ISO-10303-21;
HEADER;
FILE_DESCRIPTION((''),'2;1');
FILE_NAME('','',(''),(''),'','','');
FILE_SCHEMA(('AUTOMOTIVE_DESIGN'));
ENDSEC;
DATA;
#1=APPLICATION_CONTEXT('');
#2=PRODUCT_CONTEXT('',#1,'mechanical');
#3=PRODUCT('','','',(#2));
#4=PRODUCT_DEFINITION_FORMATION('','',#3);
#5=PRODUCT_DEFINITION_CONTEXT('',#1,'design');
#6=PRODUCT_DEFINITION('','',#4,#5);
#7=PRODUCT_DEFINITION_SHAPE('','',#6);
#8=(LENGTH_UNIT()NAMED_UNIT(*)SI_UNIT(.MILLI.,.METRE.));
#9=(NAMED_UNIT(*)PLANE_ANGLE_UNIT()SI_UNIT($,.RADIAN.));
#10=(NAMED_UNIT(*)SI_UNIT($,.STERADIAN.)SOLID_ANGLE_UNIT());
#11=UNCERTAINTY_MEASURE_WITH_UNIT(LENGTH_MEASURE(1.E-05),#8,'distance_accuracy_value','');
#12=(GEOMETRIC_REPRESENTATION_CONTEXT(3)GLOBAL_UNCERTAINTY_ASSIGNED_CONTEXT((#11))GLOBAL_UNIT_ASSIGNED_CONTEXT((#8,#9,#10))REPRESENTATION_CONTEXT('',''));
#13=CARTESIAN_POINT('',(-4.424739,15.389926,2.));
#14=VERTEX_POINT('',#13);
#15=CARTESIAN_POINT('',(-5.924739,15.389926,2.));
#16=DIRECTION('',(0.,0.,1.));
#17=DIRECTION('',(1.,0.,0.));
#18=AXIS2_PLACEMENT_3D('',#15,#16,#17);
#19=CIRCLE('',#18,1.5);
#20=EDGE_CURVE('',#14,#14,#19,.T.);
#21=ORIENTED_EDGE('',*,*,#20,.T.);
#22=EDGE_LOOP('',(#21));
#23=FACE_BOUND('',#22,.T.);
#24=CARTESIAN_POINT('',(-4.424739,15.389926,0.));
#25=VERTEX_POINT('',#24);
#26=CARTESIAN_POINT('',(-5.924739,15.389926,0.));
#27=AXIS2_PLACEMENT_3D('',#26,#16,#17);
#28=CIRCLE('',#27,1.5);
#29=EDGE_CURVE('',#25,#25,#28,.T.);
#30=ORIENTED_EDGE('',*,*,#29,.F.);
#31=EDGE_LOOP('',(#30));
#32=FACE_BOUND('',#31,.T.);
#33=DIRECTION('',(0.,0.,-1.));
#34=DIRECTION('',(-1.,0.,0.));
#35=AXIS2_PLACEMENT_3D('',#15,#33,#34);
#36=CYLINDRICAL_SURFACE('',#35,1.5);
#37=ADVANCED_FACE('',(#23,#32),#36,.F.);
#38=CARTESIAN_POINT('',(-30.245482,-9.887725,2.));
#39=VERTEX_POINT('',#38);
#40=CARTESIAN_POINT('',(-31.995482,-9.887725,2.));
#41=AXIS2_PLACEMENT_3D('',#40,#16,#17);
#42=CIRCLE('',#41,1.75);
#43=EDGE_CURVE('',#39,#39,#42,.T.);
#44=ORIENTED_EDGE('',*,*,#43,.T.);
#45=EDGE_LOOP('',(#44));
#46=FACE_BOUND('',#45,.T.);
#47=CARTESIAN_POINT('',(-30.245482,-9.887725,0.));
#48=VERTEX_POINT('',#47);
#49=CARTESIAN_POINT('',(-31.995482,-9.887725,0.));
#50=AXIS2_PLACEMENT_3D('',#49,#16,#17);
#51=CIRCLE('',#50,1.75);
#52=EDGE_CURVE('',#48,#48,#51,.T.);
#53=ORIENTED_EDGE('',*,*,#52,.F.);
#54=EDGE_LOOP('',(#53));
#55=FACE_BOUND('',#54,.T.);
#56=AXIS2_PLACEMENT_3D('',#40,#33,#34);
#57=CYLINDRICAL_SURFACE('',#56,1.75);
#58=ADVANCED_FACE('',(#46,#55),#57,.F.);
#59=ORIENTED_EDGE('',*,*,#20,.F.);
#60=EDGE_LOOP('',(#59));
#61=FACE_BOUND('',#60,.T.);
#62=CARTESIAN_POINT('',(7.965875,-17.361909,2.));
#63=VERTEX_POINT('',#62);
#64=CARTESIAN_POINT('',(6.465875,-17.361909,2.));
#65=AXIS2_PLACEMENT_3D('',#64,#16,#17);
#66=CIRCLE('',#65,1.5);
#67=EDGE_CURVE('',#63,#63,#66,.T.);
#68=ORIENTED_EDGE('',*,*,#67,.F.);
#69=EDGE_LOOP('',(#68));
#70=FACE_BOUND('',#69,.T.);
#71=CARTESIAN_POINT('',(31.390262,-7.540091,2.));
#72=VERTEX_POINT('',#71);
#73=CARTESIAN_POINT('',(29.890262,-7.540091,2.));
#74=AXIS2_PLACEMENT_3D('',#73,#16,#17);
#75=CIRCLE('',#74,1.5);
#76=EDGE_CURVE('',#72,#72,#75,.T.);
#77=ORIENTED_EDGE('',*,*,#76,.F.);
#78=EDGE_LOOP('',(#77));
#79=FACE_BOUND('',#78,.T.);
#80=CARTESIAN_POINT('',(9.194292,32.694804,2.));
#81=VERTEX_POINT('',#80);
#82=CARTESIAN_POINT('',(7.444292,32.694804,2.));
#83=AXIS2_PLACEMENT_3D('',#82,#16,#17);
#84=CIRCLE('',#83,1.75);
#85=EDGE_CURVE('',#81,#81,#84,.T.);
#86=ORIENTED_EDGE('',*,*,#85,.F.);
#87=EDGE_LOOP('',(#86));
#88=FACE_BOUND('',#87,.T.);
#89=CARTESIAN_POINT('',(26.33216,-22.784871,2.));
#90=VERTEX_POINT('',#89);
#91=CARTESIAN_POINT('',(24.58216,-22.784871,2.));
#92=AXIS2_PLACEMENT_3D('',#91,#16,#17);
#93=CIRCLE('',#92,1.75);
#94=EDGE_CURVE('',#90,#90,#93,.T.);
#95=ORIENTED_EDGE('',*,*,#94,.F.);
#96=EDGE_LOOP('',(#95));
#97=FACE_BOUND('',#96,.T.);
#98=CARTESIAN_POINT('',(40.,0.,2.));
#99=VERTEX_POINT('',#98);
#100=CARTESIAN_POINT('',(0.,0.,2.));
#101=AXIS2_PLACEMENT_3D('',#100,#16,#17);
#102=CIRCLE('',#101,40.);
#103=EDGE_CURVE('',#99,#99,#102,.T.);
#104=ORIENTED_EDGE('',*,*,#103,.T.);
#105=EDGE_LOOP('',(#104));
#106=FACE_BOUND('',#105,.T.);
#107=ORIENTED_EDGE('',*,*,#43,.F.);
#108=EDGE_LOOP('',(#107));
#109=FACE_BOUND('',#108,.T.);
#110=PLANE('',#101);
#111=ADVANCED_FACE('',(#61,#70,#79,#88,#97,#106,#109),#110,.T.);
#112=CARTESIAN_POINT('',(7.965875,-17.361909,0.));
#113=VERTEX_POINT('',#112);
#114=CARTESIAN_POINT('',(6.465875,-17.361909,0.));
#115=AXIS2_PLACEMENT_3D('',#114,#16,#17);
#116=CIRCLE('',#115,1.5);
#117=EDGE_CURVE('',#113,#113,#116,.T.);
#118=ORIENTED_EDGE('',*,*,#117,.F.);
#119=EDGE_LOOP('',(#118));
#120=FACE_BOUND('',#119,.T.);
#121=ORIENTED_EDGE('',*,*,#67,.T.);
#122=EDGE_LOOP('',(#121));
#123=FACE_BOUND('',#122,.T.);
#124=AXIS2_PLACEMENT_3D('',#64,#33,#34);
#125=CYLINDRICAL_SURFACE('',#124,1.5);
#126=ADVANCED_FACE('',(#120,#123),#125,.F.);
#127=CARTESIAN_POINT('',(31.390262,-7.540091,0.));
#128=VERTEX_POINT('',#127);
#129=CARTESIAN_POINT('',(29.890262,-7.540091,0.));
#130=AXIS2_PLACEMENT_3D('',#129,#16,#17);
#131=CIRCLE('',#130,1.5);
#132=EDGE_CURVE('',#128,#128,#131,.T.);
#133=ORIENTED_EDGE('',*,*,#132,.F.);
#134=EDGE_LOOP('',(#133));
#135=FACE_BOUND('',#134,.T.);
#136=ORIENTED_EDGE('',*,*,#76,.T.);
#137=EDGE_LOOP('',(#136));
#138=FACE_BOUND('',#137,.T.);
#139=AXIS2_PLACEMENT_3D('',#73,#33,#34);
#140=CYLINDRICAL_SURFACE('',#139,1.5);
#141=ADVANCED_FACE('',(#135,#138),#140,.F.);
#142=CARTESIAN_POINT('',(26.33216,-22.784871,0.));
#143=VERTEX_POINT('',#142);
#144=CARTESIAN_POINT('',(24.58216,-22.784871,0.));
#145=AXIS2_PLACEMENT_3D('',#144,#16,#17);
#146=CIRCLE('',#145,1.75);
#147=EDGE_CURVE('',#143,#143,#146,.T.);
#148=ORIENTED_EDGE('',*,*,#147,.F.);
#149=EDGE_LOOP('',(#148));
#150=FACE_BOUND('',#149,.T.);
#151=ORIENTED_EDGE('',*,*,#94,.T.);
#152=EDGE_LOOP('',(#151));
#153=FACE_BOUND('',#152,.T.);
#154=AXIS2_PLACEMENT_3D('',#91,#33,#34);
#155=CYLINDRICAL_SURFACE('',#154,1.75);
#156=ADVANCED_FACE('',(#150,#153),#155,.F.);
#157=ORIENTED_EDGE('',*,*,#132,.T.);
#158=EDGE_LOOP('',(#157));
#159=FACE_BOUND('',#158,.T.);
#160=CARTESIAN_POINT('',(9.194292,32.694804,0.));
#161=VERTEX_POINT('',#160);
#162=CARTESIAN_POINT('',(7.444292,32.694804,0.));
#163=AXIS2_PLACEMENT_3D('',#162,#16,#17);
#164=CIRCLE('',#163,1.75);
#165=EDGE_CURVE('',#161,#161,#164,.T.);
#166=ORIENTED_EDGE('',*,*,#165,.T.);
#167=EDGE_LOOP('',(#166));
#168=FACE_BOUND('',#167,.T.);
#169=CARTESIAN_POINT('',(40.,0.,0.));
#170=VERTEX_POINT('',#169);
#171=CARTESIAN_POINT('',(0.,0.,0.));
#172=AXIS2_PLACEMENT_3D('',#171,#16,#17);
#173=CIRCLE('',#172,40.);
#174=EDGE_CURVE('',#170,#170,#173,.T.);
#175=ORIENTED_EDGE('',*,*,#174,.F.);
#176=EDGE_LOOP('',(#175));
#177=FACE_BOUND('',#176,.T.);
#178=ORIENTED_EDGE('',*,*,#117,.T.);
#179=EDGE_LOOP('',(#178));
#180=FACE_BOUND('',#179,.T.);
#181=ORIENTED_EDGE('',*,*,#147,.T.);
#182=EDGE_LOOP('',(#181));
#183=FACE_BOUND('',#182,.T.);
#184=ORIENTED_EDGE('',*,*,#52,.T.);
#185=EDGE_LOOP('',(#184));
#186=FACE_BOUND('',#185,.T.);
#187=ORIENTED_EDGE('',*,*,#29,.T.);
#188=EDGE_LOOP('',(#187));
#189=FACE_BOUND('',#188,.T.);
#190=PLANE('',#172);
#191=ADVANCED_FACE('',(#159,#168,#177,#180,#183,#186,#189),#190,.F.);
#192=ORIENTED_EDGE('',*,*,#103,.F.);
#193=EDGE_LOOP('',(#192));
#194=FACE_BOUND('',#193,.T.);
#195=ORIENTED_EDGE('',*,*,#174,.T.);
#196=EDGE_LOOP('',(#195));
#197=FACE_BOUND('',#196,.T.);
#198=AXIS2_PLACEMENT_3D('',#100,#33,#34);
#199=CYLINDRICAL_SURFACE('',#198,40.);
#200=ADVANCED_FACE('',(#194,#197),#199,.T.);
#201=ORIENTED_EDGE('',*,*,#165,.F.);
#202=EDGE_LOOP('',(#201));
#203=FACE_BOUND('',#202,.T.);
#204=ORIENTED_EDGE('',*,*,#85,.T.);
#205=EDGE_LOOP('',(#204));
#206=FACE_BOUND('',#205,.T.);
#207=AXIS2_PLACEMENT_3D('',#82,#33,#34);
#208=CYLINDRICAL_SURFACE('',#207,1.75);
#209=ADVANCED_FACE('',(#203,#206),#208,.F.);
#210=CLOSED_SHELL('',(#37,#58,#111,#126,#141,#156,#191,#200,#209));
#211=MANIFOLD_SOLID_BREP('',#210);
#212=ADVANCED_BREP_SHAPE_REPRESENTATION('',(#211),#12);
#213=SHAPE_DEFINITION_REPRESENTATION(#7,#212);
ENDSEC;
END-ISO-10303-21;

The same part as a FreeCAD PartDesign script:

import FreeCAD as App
import Part
import Sketcher
from FreeCAD import Vector
Q = App.Units.Quantity

doc = App.newDocument("Part")
params = doc.addObject("Spreadsheet::Sheet", "Params")
for row, (alias, value) in enumerate([
    ("sketch1_diameter", "80 mm"),
    ("sketch1_diameter2", "3 mm"),
    ("sketch1_diameter3", "3.5 mm"),
    ("pad1_length", "2 mm"),
], start=1):
    params.set(f"A{row}", alias)
    params.set(f"B{row}", "=" + value)
    params.setAlias(f"B{row}", alias)

body = doc.addObject("PartDesign::Body", "Body")

# Sketch on XY plane
sketch1 = body.newObject("Sketcher::SketchObject", "Sketch")
sketch1.AttachmentSupport = (doc.getObject("XY_Plane"), [""])
sketch1.MapMode = "FlatFace"
sketch1.addGeometry(Part.Circle(Vector(0, 0, 0), Vector(0, 0, 1), 40), False)
sketch1.addGeometry(Part.Circle(Vector(-32, -9.9, 0), Vector(0, 0, 1), 1.8), False)
sketch1.addGeometry(Part.Circle(Vector(6.5, -17.4, 0), Vector(0, 0, 1), 1.5), False)
sketch1.addGeometry(Part.Circle(Vector(24.6, -22.8, 0), Vector(0, 0, 1), 1.8), False)
sketch1.addGeometry(Part.Circle(Vector(29.9, -7.5, 0), Vector(0, 0, 1), 1.5), False)
sketch1.addGeometry(Part.Circle(Vector(-5.9, 15.4, 0), Vector(0, 0, 1), 1.5), False)
sketch1.addGeometry(Part.Circle(Vector(7.4, 32.7, 0), Vector(0, 0, 1), 1.8), False)
sketch1.addConstraint(Sketcher.Constraint("Coincident", 0, 3, -1, 1))
sketch1.addConstraint(Sketcher.Constraint("Equal", 1, 3))
sketch1.addConstraint(Sketcher.Constraint("Equal", 2, 4))
sketch1.addConstraint(Sketcher.Constraint("Equal", 4, 5))
sketch1.addConstraint(Sketcher.Constraint("Equal", 3, 6))
sketch1.addConstraint(Sketcher.Constraint("Diameter", 0, Q("80 mm")))
sketch1.addConstraint(Sketcher.Constraint("Diameter", 2, Q("3 mm")))
sketch1.addConstraint(Sketcher.Constraint("Diameter", 1, Q("3.5 mm")))
sketch1.addConstraint(Sketcher.Constraint("DistanceX", 5, 3, 4, 3, Q("35.815001 mm")))
sketch1.addConstraint(Sketcher.Constraint("DistanceX", 3, 3, 4, 3, Q("5.308102 mm")))
sketch1.addConstraint(Sketcher.Constraint("DistanceY", 2, 3, -1, 1, Q("17.361909 mm")))
sketch1.addConstraint(Sketcher.Constraint("DistanceX", -1, 1, 3, 3, Q("24.58216 mm")))
sketch1.addConstraint(Sketcher.Constraint("DistanceY", 3, 3, -1, 1, Q("22.784871 mm")))
sketch1.addConstraint(Sketcher.Constraint("DistanceY", 4, 3, -1, 1, Q("7.540091 mm")))
sketch1.addConstraint(Sketcher.Constraint("DistanceY", 1, 3, 5, 3, Q("25.277651 mm")))
sketch1.addConstraint(Sketcher.Constraint("DistanceX", 5, 3, 6, 3, Q("13.369032 mm")))
sketch1.addConstraint(Sketcher.Constraint("DistanceY", 1, 3, 6, 3, Q("42.582529 mm")))
sketch1.addConstraint(Sketcher.Constraint("DistanceX", 1, 3, -1, 1, Q("31.995482 mm")))
sketch1.addConstraint(Sketcher.Constraint("DistanceY", 1, 3, -1, 1, Q("9.887725 mm")))
sketch1.addConstraint(Sketcher.Constraint("DistanceX", -1, 1, 2, 3, Q("6.465875 mm")))
sketch1.setExpression("Constraints[5]", "Params.sketch1_diameter")
sketch1.setExpression("Constraints[6]", "Params.sketch1_diameter2")
sketch1.setExpression("Constraints[7]", "Params.sketch1_diameter3")
pad1 = body.newObject("PartDesign::Pad", "Pad")
pad1.Profile = sketch1
pad1.setExpression("Length", "Params.pad1_length")

doc.recompute()
